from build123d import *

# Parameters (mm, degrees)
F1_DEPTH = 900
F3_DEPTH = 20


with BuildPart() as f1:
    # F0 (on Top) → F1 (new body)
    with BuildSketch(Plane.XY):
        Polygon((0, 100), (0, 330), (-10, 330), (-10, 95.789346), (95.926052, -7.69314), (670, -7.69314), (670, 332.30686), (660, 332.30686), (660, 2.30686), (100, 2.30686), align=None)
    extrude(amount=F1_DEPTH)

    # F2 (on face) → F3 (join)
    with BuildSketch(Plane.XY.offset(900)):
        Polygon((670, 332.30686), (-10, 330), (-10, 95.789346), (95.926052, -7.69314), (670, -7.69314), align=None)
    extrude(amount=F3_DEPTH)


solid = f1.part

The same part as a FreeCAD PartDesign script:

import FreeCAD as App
import Part
import Sketcher
Q = App.Units.Quantity

doc = App.newDocument("Part")
params = doc.addObject("Spreadsheet::Sheet", "Params")
for row, (alias, value) in enumerate([
    ("sketch1_width", "10 mm"),
    ("sketch1_width2", "560 mm"),
    ("sketch1_height", "230 mm"),
    ("sketch1_height2", "340 mm"),
    ("sketch1_height3", "330 mm"),
    ("pad1_length", "900 mm"),
    ("sketch2_height", "340 mm"),
    ("pad2_length", "20 mm"),
], start=1):
    params.set(f"A{row}", alias)
    params.set(f"B{row}", "=" + value)
    params.setAlias(f"B{row}", alias)

body = doc.addObject("PartDesign::Body", "Body")

# Sketch on XY plane
sketch1 = body.newObject("Sketcher::SketchObject", "Sketch")
sketch1.AttachmentSupport = (doc.getObject("XY_Plane"), [""])
sketch1.MapMode = "FlatFace"
sketch1.addGeometry(Part.LineSegment(App.Vector(0, 100, 0), App.Vector(0, 330, 0)), False)
sketch1.addGeometry(Part.LineSegment(App.Vector(0, 330, 0), App.Vector(-10, 330, 0)), False)
sketch1.addGeometry(Part.LineSegment(App.Vector(-10, 330, 0), App.Vector(-10, 96, 0)), False)
sketch1.addGeometry(Part.LineSegment(App.Vector(-10, 96, 0), App.Vector(96, -8, 0)), False)
sketch1.addGeometry(Part.LineSegment(App.Vector(96, -8, 0), App.Vector(670, -8, 0)), False)
sketch1.addGeometry(Part.LineSegment(App.Vector(670, -8, 0), App.Vector(670, 332, 0)), False)
sketch1.addGeometry(Part.LineSegment(App.Vector(670, 332, 0), App.Vector(660, 332, 0)), False)
sketch1.addGeometry(Part.LineSegment(App.Vector(660, 332, 0), App.Vector(660, 2, 0)), False)
sketch1.addGeometry(Part.LineSegment(App.Vector(660, 2, 0), App.Vector(100, 2, 0)), False)
sketch1.addGeometry(Part.LineSegment(App.Vector(100, 2, 0), App.Vector(0, 100, 0)), False)
sketch1.addConstraint(Sketcher.Constraint("Coincident", 0, 2, 1, 1))
sketch1.addConstraint(Sketcher.Constraint("Coincident", 1, 2, 2, 1))
sketch1.addConstraint(Sketcher.Constraint("Coincident", 2, 2, 3, 1))
sketch1.addConstraint(Sketcher.Constraint("Coincident", 3, 2, 4, 1))
sketch1.addConstraint(Sketcher.Constraint("Coincident", 4, 2, 5, 1))
sketch1.addConstraint(Sketcher.Constraint("Coincident", 5, 2, 6, 1))
sketch1.addConstraint(Sketcher.Constraint("Coincident", 6, 2, 7, 1))
sketch1.addConstraint(Sketcher.Constraint("Coincident", 7, 2, 8, 1))
sketch1.addConstraint(Sketcher.Constraint("Coincident", 8, 2, 9, 1))
sketch1.addConstraint(Sketcher.Constraint("Coincident", 9, 2, 0, 1))
sketch1.addConstraint(Sketcher.Constraint("Vertical", 0))
sketch1.addConstraint(Sketcher.Constraint("Horizontal", 1))
sketch1.addConstraint(Sketcher.Constraint("Vertical", 2))
sketch1.addConstraint(Sketcher.Constraint("Horizontal", 4))
sketch1.addConstraint(Sketcher.Constraint("Vertical", 5))
sketch1.addConstraint(Sketcher.Constraint("Horizontal", 6))
sketch1.addConstraint(Sketcher.Constraint("Vertical", 7))
sketch1.addConstraint(Sketcher.Constraint("Horizontal", 8))
sketch1.addConstraint(Sketcher.Constraint("PointOnObject", 0, 2, -2))
sketch1.addConstraint(Sketcher.Constraint("Parallel", 3, 9))
sketch1.addConstraint(Sketcher.Constraint("Equal", 1, 6))
sketch1.addConstraint(Sketcher.Constraint("DistanceX", 1, 2, 1, 1, Q("10 mm")))
sketch1.addConstraint(Sketcher.Constraint("DistanceX", 8, 2, 8, 1, Q("560 mm")))
sketch1.addConstraint(Sketcher.Constraint("DistanceY", 0, 1, 0, 2, Q("230 mm")))
sketch1.addConstraint(Sketcher.Constraint("DistanceY", 5, 1, 5, 2, Q("340 mm")))
sketch1.addConstraint(Sketcher.Constraint("DistanceY", 7, 2, 7, 1, Q("330 mm")))
sketch1.addConstraint(Sketcher.Constraint("DistanceY", -1, 1, 0, 2, Q("330 mm")))
sketch1.addConstraint(Sketcher.Constraint("DistanceX", -1, 1, 4, 2, Q("670 mm")))
sketch1.addConstraint(Sketcher.Constraint("DistanceX", 4, 1, 4, 2, Q("574.073948 mm")))
sketch1.addConstraint(Sketcher.Constraint("Distance", 3, Q("148.084278 mm")))
sketch1.setExpression("Constraints[21]", "Params.sketch1_width")
sketch1.setExpression("Constraints[22]", "Params.sketch1_width2")
sketch1.setExpression("Constraints[23]", "Params.sketch1_height")
sketch1.setExpression("Constraints[24]", "Params.sketch1_height2")
sketch1.setExpression("Constraints[25]", "Params.sketch1_height3")
pad1 = body.newObject("PartDesign::Pad", "Pad")
pad1.Profile = sketch1
pad1.setExpression("Length", "Params.pad1_length")

# Sketch on XY plane
sketch2 = body.newObject("Sketcher::SketchObject", "Sketch001")
sketch2.AttachmentSupport = (doc.getObject("XY_Plane"), [""])
sketch2.MapMode = "FlatFace"
sketch2.AttachmentOffset = App.Placement(App.Vector(0, 0, 900), App.Rotation())
sketch2.addGeometry(Part.LineSegment(App.Vector(670, 332, 0), App.Vector(-10, 330, 0)), False)
sketch2.addGeometry(Part.LineSegment(App.Vector(-10, 330, 0), App.Vector(-10, 96, 0)), False)
sketch2.addGeometry(Part.LineSegment(App.Vector(-10, 96, 0), App.Vector(96, -8, 0)), False)
sketch2.addGeometry(Part.LineSegment(App.Vector(96, -8, 0), App.Vector(670, -8, 0)), False)
sketch2.addGeometry(Part.LineSegment(App.Vector(670, -8, 0), App.Vector(670, 332, 0)), False)
sketch2.addConstraint(Sketcher.Constraint("Coincident", 0, 2, 1, 1))
sketch2.addConstraint(Sketcher.Constraint("Coincident", 1, 2, 2, 1))
sketch2.addConstraint(Sketcher.Constraint("Coincident", 2, 2, 3, 1))
sketch2.addConstraint(Sketcher.Constraint("Coincident", 3, 2, 4, 1))
sketch2.addConstraint(Sketcher.Constraint("Coincident", 4, 2, 0, 1))
sketch2.addConstraint(Sketcher.Constraint("Vertical", 1))
sketch2.addConstraint(Sketcher.Constraint("Horizontal", 3))
sketch2.addConstraint(Sketcher.Constraint("Vertical", 4))
sketch2.addConstraint(Sketcher.Constraint("DistanceY", 4, 1, 4, 2, Q("340 mm")))
sketch2.addConstraint(Sketcher.Constraint("DistanceX", 0, 2, -1, 1, Q("10 mm")))
sketch2.addConstraint(Sketcher.Constraint("DistanceY", -1, 1, 0, 2, Q("330 mm")))
sketch2.addConstraint(Sketcher.Constraint("DistanceX", -1, 1, 3, 2, Q("670 mm")))
sketch2.addConstraint(Sketcher.Constraint("DistanceX", 3, 1, 3, 2, Q("574.073948 mm")))
sketch2.addConstraint(Sketcher.Constraint("Distance", 2, Q("148.084278 mm")))
sketch2.addConstraint(Sketcher.Constraint("DistanceY", 1, 2, 1, 1, Q("234.210654 mm")))
sketch2.setExpression("Constraints[8]", "Params.sketch2_height")
pad2 = body.newObject("PartDesign::Pad", "Pad001")
pad2.Profile = sketch2
pad2.setExpression("Length", "Params.pad2_length")

doc.recompute()
